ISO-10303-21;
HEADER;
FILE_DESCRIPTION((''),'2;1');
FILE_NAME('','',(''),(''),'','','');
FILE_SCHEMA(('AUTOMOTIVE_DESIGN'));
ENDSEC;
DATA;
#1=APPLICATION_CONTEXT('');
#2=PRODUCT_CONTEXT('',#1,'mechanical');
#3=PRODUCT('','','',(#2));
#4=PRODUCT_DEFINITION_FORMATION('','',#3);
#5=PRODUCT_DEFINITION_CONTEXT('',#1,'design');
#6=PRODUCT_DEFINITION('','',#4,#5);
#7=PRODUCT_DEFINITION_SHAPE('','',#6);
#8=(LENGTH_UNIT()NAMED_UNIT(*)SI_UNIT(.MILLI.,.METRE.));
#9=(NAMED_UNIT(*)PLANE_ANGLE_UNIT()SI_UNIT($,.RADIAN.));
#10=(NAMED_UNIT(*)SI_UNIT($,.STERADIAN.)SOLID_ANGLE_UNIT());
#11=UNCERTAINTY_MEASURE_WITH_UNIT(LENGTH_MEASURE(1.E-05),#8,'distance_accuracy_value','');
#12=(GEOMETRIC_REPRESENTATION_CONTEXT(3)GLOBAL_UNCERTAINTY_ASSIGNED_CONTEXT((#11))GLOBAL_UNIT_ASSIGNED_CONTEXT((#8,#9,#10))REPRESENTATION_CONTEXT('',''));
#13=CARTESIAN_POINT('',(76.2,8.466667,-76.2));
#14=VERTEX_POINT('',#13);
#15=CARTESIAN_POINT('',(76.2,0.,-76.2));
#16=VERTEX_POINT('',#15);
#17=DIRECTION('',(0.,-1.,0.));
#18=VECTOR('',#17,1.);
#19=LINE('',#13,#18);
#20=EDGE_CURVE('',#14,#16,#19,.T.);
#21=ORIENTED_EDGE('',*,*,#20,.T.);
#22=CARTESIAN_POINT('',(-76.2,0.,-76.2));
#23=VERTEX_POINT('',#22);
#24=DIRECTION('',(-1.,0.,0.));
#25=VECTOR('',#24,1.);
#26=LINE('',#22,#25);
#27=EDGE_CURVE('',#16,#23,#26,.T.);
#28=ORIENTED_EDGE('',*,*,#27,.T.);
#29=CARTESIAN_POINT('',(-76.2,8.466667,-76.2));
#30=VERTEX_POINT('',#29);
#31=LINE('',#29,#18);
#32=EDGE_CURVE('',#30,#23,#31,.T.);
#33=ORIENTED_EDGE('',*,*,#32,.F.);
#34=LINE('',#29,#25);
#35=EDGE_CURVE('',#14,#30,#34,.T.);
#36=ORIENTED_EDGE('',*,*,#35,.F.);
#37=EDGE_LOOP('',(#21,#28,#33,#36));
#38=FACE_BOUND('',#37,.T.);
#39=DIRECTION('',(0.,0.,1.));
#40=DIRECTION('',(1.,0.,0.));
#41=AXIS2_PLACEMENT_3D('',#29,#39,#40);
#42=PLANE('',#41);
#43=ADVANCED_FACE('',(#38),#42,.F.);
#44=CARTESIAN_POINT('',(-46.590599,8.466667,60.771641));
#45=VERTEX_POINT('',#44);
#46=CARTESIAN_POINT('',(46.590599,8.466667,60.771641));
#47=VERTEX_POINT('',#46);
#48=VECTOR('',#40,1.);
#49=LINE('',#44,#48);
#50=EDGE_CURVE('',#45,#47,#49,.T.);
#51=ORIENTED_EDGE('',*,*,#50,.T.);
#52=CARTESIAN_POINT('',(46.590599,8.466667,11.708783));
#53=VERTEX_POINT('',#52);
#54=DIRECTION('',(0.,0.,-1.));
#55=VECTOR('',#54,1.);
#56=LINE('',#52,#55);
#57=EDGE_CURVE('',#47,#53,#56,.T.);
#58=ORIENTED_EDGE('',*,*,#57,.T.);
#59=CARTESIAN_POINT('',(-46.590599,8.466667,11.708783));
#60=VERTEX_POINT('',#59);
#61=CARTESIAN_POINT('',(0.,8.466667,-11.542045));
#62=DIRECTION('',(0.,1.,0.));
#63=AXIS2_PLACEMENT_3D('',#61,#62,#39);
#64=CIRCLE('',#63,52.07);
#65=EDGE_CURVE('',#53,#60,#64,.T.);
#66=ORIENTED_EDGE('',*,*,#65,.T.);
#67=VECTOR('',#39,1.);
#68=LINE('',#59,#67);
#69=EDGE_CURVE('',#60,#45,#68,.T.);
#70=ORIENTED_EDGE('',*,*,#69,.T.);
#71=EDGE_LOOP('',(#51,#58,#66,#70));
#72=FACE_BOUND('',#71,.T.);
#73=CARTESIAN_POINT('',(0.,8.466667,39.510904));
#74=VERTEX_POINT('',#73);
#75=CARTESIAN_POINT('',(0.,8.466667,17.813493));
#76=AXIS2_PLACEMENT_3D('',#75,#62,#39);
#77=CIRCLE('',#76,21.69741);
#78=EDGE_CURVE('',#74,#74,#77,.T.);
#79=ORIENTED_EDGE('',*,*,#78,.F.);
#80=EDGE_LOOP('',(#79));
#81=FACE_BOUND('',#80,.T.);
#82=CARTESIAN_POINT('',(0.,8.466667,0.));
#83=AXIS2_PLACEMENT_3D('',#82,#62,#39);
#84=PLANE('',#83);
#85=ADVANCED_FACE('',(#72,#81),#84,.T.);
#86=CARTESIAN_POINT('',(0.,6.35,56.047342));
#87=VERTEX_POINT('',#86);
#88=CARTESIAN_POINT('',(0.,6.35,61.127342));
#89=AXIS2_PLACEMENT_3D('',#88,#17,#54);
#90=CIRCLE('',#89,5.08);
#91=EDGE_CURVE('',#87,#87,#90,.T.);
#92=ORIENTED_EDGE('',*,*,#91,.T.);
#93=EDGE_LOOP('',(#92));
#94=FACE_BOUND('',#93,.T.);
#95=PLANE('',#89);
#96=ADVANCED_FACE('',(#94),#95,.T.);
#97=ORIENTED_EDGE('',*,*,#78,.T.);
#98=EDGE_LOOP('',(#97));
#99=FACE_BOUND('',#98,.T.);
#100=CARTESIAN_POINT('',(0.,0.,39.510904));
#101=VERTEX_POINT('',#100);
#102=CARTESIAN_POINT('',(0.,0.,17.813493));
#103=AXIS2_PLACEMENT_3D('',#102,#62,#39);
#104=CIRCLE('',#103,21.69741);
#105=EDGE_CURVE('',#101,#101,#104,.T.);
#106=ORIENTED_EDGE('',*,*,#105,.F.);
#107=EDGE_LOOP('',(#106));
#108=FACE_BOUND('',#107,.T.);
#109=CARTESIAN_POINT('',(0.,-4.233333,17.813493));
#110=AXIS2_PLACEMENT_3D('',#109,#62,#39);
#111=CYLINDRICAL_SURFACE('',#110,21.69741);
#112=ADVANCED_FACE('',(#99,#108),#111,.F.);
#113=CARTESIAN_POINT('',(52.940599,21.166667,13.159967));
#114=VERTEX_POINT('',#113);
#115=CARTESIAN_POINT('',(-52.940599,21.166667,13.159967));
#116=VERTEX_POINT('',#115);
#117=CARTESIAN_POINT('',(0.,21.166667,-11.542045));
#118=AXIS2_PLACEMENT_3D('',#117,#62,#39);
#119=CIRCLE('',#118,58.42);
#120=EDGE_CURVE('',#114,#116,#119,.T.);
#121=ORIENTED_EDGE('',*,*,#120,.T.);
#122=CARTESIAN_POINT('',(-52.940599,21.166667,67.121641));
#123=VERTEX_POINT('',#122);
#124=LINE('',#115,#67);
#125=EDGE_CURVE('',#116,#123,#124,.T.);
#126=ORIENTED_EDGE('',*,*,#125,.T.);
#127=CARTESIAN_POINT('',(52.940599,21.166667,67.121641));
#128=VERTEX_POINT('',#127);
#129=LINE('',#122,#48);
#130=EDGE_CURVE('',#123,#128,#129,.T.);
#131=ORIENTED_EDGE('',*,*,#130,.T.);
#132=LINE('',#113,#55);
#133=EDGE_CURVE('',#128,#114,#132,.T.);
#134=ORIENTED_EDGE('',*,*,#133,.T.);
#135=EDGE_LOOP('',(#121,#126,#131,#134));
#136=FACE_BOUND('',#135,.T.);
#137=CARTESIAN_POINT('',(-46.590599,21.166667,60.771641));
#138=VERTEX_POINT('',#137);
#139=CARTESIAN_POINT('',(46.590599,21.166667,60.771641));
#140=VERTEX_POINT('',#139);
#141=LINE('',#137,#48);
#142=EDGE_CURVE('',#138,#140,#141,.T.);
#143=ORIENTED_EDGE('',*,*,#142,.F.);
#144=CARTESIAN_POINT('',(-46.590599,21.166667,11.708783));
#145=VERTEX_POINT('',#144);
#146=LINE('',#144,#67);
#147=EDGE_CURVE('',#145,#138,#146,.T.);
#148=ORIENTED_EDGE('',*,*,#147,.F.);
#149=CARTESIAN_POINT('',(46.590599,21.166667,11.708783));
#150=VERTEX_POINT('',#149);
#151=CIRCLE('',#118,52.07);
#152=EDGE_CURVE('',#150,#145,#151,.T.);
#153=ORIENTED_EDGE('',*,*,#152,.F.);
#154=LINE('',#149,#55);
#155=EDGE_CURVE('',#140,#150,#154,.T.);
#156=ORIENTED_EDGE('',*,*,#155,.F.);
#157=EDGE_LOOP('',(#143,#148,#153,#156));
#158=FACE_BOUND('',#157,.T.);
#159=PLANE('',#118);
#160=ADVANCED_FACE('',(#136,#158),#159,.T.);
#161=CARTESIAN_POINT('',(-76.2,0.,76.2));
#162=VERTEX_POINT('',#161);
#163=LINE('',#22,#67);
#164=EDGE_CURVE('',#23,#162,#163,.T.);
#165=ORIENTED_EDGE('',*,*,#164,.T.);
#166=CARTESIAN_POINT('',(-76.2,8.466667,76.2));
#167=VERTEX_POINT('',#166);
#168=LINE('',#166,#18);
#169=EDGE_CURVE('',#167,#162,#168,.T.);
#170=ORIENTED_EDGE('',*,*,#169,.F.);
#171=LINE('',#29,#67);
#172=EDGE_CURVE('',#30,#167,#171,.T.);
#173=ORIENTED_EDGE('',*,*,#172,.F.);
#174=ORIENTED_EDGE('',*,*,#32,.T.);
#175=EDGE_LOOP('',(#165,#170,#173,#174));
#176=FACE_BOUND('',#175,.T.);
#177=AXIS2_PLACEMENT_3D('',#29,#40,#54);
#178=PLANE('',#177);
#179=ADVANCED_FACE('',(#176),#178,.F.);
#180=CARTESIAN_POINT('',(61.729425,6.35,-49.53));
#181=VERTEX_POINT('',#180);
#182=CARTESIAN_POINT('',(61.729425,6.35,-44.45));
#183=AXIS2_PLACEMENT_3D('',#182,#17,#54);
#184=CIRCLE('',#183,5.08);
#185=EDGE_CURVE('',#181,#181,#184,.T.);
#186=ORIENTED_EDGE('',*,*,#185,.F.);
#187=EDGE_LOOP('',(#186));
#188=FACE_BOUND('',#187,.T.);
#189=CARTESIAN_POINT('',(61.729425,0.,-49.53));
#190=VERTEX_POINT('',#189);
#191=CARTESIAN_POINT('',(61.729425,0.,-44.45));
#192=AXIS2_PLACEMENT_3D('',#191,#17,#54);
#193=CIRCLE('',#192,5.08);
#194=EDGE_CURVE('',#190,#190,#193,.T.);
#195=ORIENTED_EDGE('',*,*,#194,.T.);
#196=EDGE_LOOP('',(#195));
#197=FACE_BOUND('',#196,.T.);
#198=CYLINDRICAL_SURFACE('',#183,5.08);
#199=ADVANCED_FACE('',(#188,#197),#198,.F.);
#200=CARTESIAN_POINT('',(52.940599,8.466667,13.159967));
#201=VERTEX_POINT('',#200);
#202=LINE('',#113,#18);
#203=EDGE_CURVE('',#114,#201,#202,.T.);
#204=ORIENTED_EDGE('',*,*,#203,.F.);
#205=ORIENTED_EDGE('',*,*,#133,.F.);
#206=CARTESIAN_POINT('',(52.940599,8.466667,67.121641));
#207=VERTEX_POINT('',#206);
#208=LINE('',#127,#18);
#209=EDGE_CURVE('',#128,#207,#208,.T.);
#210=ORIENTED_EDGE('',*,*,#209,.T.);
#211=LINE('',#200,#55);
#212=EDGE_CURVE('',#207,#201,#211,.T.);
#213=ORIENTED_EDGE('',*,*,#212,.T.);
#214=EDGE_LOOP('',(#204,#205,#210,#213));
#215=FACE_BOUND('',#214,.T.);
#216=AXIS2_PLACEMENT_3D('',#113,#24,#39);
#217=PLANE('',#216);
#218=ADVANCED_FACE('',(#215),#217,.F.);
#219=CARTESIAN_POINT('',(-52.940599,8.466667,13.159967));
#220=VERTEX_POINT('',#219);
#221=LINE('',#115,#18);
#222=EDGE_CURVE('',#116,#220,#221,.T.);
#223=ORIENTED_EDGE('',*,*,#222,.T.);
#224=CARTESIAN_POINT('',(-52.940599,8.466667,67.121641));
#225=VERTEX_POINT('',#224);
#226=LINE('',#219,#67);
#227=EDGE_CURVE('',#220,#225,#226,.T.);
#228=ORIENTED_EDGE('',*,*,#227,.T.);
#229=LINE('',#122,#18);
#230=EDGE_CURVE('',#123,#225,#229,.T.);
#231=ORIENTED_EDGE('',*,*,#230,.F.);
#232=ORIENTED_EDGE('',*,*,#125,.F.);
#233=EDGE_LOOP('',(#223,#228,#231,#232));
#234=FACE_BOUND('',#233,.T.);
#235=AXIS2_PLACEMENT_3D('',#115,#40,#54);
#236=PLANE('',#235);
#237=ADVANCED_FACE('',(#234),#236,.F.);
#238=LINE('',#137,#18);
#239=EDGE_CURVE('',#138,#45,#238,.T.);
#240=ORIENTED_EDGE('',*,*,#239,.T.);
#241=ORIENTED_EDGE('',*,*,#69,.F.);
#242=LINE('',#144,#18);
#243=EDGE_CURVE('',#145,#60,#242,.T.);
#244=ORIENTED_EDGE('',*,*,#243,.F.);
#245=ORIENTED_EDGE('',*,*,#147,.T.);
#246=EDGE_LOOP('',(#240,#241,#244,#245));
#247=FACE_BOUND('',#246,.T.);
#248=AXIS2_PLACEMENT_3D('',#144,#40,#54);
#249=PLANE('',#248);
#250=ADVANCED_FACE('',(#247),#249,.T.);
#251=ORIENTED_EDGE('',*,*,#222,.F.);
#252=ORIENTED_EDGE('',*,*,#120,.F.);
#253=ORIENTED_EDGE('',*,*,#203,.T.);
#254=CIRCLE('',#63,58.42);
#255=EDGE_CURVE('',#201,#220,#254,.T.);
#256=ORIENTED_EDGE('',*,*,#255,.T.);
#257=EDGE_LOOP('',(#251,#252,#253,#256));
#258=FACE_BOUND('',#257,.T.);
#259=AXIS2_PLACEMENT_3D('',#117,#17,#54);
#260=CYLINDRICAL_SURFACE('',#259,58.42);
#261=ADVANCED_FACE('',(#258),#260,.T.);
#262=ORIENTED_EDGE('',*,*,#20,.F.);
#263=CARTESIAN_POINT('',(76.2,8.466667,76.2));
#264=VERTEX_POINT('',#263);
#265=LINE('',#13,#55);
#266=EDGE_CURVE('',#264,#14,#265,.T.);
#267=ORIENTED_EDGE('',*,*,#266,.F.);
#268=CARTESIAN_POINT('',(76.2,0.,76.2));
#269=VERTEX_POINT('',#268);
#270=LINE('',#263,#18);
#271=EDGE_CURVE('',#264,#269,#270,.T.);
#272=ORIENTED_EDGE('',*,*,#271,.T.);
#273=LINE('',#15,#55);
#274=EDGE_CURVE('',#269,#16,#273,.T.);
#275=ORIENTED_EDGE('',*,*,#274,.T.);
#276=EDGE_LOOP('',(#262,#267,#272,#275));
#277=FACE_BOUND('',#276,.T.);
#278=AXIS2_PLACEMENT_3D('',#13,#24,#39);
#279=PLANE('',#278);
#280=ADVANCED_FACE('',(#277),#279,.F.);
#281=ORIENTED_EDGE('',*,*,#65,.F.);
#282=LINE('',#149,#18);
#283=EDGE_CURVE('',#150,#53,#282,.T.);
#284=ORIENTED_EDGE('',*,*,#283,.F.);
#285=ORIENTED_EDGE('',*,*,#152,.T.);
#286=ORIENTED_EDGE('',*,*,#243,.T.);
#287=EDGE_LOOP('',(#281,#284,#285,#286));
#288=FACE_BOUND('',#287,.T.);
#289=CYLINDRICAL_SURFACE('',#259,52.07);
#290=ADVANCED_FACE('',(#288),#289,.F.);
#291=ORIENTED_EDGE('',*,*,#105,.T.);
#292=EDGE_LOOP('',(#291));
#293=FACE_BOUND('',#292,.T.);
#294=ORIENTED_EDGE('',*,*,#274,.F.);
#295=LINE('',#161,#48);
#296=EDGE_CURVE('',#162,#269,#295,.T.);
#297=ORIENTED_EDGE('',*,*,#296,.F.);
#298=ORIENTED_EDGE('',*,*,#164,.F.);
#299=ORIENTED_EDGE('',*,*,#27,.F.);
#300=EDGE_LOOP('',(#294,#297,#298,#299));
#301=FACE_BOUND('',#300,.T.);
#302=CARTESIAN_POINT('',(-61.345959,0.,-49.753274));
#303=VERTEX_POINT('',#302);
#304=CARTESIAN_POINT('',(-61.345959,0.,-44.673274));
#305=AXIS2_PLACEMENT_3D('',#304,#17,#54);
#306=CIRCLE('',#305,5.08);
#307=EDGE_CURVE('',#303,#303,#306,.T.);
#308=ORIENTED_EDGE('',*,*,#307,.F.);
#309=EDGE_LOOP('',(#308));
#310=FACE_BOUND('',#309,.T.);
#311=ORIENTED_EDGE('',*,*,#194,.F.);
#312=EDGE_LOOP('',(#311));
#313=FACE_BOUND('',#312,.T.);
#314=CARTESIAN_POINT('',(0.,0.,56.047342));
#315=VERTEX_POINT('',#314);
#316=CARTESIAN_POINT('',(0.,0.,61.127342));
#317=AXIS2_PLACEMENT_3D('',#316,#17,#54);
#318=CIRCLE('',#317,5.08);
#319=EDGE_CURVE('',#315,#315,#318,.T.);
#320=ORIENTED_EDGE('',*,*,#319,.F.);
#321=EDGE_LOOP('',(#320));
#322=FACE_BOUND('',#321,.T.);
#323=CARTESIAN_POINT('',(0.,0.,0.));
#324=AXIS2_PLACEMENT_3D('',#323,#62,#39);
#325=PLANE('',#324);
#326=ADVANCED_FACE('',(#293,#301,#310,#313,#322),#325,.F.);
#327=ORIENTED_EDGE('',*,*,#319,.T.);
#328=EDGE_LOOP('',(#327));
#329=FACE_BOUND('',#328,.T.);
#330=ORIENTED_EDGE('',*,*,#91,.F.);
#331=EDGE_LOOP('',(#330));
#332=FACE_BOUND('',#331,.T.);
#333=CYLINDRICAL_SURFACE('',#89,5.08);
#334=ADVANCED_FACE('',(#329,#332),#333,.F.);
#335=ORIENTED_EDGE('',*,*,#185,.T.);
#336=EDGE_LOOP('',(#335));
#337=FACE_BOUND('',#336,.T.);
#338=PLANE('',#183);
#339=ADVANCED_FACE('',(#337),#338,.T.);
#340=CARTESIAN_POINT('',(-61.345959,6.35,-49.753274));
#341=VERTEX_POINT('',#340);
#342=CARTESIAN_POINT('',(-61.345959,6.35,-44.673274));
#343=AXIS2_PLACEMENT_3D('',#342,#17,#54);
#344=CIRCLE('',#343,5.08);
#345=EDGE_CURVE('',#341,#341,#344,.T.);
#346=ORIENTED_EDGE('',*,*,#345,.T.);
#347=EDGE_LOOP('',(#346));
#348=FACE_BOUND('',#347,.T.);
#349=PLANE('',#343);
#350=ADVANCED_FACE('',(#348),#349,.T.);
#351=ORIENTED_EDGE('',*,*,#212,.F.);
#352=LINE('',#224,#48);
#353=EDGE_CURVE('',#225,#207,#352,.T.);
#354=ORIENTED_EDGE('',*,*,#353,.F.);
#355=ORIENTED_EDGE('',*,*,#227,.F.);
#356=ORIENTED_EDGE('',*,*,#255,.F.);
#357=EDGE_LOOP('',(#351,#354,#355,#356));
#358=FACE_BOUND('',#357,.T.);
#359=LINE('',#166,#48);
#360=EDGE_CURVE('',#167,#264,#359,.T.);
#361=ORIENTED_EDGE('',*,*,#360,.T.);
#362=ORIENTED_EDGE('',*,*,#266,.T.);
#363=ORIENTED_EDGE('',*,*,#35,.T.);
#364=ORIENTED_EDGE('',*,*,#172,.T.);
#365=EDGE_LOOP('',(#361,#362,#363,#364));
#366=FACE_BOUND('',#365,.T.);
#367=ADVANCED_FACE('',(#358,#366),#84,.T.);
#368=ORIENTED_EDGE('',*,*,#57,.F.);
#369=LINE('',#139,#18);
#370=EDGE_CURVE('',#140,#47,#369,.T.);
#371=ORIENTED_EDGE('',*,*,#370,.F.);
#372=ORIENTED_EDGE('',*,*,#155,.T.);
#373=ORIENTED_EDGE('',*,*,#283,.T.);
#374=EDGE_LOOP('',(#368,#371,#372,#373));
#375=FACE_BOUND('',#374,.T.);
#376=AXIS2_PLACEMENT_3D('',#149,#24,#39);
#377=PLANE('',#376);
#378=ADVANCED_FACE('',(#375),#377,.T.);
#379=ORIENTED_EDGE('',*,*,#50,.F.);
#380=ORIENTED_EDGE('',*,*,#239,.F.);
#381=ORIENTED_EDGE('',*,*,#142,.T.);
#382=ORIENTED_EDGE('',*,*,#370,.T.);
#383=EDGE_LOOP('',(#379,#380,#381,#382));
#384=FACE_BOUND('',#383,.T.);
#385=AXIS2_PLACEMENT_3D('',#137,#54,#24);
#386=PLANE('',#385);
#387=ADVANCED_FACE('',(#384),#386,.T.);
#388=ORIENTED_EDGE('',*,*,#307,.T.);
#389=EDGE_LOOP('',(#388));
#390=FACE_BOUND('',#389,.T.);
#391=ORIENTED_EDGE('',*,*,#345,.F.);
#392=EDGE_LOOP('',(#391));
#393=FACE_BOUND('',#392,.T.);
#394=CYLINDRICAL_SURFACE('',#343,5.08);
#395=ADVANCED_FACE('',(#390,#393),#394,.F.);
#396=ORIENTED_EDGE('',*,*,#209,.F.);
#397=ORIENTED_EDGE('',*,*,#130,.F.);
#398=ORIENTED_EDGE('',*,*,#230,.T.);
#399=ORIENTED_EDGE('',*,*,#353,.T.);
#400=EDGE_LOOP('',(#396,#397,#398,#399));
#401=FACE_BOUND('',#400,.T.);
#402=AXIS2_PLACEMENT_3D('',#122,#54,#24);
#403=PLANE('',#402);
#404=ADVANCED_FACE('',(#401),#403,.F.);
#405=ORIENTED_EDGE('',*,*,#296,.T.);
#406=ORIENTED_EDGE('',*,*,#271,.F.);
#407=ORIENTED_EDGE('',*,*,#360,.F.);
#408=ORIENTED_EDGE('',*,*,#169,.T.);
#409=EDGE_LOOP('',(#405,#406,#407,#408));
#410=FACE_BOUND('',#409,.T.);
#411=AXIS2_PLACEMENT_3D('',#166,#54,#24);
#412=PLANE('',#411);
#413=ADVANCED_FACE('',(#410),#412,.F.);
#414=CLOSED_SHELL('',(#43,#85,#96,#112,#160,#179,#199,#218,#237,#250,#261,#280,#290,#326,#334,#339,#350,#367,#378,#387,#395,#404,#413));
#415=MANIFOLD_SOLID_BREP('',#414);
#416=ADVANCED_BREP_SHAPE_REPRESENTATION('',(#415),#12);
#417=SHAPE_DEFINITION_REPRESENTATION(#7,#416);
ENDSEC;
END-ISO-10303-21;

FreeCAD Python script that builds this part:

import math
import FreeCAD as App
import Part
import Sketcher
Q = App.Units.Quantity


def add_polygon(sketch, points):
    """Adds a closed chain of lines whose ends are joined by coincident constraints."""
    first, n = sketch.GeometryCount, len(points)
    for a, b in zip(points, points[1:] + points[:1]):
        sketch.addGeometry(Part.LineSegment(App.Vector(*a, 0), App.Vector(*b, 0)), False)
    for i in range(n):
        sketch.addConstraint(Sketcher.Constraint("Coincident", first + i, 2, first + (i + 1) % n, 1))

doc = App.newDocument("Part")
body = doc.addObject("PartDesign::Body", "Body")

sketch1 = body.newObject("Sketcher::SketchObject", "Sketch")
sketch1.AttachmentSupport = (doc.getObject("XZ_Plane"), [""])
sketch1.MapMode = "FlatFace"
add_polygon(sketch1, [(-76.2, -76.2), (-76.2, 76.2), (76.2, 76.2), (76.2, -76.2)])
sketch1.addConstraint(Sketcher.Constraint("Vertical", 0))
sketch1.addConstraint(Sketcher.Constraint("Horizontal", 1))
sketch1.addConstraint(Sketcher.Constraint("Vertical", 2))
sketch1.addConstraint(Sketcher.Constraint("Horizontal", 3))
sketch1.addConstraint(Sketcher.Constraint("Symmetric", 0, 2, 2, 2, -1, 1))
sketch1.addConstraint(Sketcher.Constraint("Equal", 3, 0))
sketch1.addConstraint(Sketcher.Constraint("DistanceX", 1, 1, 1, 2, Q("6 in")))
pad1 = body.newObject("PartDesign::Pad", "Pad")
pad1.Profile = sketch1
pad1.Length = 8.466667
pad1.Reversed = True

sketch2 = body.newObject("Sketcher::SketchObject", "Sketch001")
sketch2.AttachmentSupport = (doc.getObject("XZ_Plane"), [""])
sketch2.MapMode = "FlatFace"
sketch2.addGeometry(Part.Circle(App.Vector(-61.345959, -44.673274, 0), App.Vector(0, 0, 1), 5.08), False)
sketch2.addGeometry(Part.Circle(App.Vector(0, 61.127342, 0), App.Vector(0, 0, 1), 5.08), False)
sketch2.addGeometry(Part.Circle(App.Vector(61.729425, -44.45, 0), App.Vector(0, 0, 1), 5.08), False)
sketch2.addConstraint(Sketcher.Constraint("Equal", 0, 1))
sketch2.addConstraint(Sketcher.Constraint("Equal", 1, 2))
sketch2.addConstraint(Sketcher.Constraint("PointOnObject", 1, 3, -2))
sketch2.addConstraint(Sketcher.Constraint("Diameter", 0, Q("0.4 in")))
sketch2.addConstraint(Sketcher.Constraint("DistanceY", 2, 3, -1, 1, Q("1.75 in")))
sketch2.addConstraint(Sketcher.Constraint("DistanceX", 0, 3, -1, 1, Q("61.345959 mm")))
sketch2.addConstraint(Sketcher.Constraint("DistanceY", -1, 1, 1, 3, Q("61.127342 mm")))
sketch2.addConstraint(Sketcher.Constraint("DistanceY", 0, 3, -1, 1, Q("44.673274 mm")))
sketch2.addConstraint(Sketcher.Constraint("DistanceX", -1, 1, 2, 3, Q("61.729425 mm")))
pocket1 = body.newObject("PartDesign::Pocket", "Pocket")
pocket1.Profile = sketch2
pocket1.Length = Q("0.25 in")

sketch3 = body.newObject("Sketcher::SketchObject", "Sketch002")
sketch3.AttachmentSupport = (doc.getObject("XZ_Plane"), [""])
sketch3.MapMode = "FlatFace"
sketch3.AttachmentOffset = App.Placement(App.Vector(0, 0, -8.466667), App.Rotation())
sketch3.addGeometry(Part.LineSegment(App.Vector(-52.940599, 13.159967, 0), App.Vector(-52.940599, 67.121641, 0)), False)
sketch3.addGeometry(Part.LineSegment(App.Vector(-52.940599, 67.121641, 0), App.Vector(52.940599, 67.121641, 0)), False)
sketch3.addGeometry(Part.LineSegment(App.Vector(52.940599, 67.121641, 0), App.Vector(52.940599, 13.159967, 0)), False)
sketch3.addGeometry(Part.ArcOfCircle(Part.Circle(App.Vector(0, -11.542045, 0), App.Vector(0, 0, 1), 58.42), math.radians(154.986307), math.radians(385.013693)), False)
sketch3.addGeometry(Part.LineSegment(App.Vector(-46.590599, 60.771641, 0), App.Vector(-46.590599, 11.708783, 0)), False)
sketch3.addGeometry(Part.ArcOfCircle(Part.Circle(App.Vector(0, -11.542045, 0), App.Vector(0, 0, 1), 52.07), math.radians(153.478718), math.radians(386.521282)), False)
sketch3.addGeometry(Part.LineSegment(App.Vector(46.590599, 11.708783, 0), App.Vector(46.590599, 60.771641, 0)), False)
sketch3.addGeometry(Part.LineSegment(App.Vector(46.590599, 60.771641, 0), App.Vector(-46.590599, 60.771641, 0)), False)
sketch3.addConstraint(Sketcher.Constraint("Coincident", 0, 2, 1, 1))
sketch3.addConstraint(Sketcher.Constraint("Coincident", 1, 2, 2, 1))
sketch3.addConstraint(Sketcher.Constraint("Coincident", 2, 2, 3, 2))
sketch3.addConstraint(Sketcher.Constraint("Coincident", 3, 1, 0, 1))
sketch3.addConstraint(Sketcher.Constraint("Coincident", 4, 2, 5, 1))
sketch3.addConstraint(Sketcher.Constraint("Coincident", 5, 2, 6, 1))
sketch3.addConstraint(Sketcher.Constraint("Coincident", 6, 2, 7, 1))
sketch3.addConstraint(Sketcher.Constraint("Coincident", 7, 2, 4, 1))
sketch3.addConstraint(Sketcher.Constraint("Vertical", 0))
sketch3.addConstraint(Sketcher.Constraint("Horizontal", 1))
sketch3.addConstraint(Sketcher.Constraint("Vertical", 2))
sketch3.addConstraint(Sketcher.Constraint("Vertical", 4))
sketch3.addConstraint(Sketcher.Constraint("Vertical", 6))
sketch3.addConstraint(Sketcher.Constraint("Horizontal", 7))
sketch3.addConstraint(Sketcher.Constraint("Coincident", 5, 3, 3, 3))
sketch3.addConstraint(Sketcher.Constraint("Symmetric", 2, 2, 3, 1, -2))
sketch3.addConstraint(Sketcher.Constraint("Horizontal", 4, 2, 5, 2))
sketch3.addConstraint(Sketcher.Constraint("Radius", 3, Q("2.3 in")))
sketch3.addConstraint(Sketcher.Constraint("Radius", 5, Q("2.05 in")))
sketch3.addConstraint(Sketcher.Constraint("DistanceX", 3, 1, 4, 2, Q("0.25 in")))
sketch3.addConstraint(Sketcher.Constraint("DistanceY", 6, 2, 1, 2, Q("0.25 in")))
sketch3.addConstraint(Sketcher.Constraint("DistanceY", 4, 2, 4, 1, Q("49.062858 mm")))
sketch3.addConstraint(Sketcher.Constraint("DistanceX", 0, 2, -1, 1, Q("52.940599 mm")))
sketch3.addConstraint(Sketcher.Constraint("DistanceY", -1, 1, 0, 2, Q("67.121641 mm")))
pad2 = body.newObject("PartDesign::Pad", "Pad001")
pad2.Profile = sketch3
pad2.Length = Q("0.5 in")
pad2.Reversed = True

sketch4 = body.newObject("Sketcher::SketchObject", "Sketch003")
sketch4.AttachmentSupport = (doc.getObject("XZ_Plane"), [""])
sketch4.MapMode = "FlatFace"
sketch4.AttachmentOffset = App.Placement(App.Vector(0, 0, -8.466667), App.Rotation())
sketch4.addGeometry(Part.Circle(App.Vector(0, 17.813493, 0), App.Vector(0, 0, 1), 21.69741), False)
sketch4.addConstraint(Sketcher.Constraint("PointOnObject", 0, 3, -2))
sketch4.addConstraint(Sketcher.Constraint("Diameter", 0, Q("43.394821 mm")))
sketch4.addConstraint(Sketcher.Constraint("DistanceY", -1, 1, 0, 3, Q("17.813493 mm")))
pocket2 = body.newObject("PartDesign::Pocket", "Pocket001")
pocket2.Profile = sketch4
pocket2.Length = Q("0.5 in")
pocket2.Reversed = True

doc.recompute()
